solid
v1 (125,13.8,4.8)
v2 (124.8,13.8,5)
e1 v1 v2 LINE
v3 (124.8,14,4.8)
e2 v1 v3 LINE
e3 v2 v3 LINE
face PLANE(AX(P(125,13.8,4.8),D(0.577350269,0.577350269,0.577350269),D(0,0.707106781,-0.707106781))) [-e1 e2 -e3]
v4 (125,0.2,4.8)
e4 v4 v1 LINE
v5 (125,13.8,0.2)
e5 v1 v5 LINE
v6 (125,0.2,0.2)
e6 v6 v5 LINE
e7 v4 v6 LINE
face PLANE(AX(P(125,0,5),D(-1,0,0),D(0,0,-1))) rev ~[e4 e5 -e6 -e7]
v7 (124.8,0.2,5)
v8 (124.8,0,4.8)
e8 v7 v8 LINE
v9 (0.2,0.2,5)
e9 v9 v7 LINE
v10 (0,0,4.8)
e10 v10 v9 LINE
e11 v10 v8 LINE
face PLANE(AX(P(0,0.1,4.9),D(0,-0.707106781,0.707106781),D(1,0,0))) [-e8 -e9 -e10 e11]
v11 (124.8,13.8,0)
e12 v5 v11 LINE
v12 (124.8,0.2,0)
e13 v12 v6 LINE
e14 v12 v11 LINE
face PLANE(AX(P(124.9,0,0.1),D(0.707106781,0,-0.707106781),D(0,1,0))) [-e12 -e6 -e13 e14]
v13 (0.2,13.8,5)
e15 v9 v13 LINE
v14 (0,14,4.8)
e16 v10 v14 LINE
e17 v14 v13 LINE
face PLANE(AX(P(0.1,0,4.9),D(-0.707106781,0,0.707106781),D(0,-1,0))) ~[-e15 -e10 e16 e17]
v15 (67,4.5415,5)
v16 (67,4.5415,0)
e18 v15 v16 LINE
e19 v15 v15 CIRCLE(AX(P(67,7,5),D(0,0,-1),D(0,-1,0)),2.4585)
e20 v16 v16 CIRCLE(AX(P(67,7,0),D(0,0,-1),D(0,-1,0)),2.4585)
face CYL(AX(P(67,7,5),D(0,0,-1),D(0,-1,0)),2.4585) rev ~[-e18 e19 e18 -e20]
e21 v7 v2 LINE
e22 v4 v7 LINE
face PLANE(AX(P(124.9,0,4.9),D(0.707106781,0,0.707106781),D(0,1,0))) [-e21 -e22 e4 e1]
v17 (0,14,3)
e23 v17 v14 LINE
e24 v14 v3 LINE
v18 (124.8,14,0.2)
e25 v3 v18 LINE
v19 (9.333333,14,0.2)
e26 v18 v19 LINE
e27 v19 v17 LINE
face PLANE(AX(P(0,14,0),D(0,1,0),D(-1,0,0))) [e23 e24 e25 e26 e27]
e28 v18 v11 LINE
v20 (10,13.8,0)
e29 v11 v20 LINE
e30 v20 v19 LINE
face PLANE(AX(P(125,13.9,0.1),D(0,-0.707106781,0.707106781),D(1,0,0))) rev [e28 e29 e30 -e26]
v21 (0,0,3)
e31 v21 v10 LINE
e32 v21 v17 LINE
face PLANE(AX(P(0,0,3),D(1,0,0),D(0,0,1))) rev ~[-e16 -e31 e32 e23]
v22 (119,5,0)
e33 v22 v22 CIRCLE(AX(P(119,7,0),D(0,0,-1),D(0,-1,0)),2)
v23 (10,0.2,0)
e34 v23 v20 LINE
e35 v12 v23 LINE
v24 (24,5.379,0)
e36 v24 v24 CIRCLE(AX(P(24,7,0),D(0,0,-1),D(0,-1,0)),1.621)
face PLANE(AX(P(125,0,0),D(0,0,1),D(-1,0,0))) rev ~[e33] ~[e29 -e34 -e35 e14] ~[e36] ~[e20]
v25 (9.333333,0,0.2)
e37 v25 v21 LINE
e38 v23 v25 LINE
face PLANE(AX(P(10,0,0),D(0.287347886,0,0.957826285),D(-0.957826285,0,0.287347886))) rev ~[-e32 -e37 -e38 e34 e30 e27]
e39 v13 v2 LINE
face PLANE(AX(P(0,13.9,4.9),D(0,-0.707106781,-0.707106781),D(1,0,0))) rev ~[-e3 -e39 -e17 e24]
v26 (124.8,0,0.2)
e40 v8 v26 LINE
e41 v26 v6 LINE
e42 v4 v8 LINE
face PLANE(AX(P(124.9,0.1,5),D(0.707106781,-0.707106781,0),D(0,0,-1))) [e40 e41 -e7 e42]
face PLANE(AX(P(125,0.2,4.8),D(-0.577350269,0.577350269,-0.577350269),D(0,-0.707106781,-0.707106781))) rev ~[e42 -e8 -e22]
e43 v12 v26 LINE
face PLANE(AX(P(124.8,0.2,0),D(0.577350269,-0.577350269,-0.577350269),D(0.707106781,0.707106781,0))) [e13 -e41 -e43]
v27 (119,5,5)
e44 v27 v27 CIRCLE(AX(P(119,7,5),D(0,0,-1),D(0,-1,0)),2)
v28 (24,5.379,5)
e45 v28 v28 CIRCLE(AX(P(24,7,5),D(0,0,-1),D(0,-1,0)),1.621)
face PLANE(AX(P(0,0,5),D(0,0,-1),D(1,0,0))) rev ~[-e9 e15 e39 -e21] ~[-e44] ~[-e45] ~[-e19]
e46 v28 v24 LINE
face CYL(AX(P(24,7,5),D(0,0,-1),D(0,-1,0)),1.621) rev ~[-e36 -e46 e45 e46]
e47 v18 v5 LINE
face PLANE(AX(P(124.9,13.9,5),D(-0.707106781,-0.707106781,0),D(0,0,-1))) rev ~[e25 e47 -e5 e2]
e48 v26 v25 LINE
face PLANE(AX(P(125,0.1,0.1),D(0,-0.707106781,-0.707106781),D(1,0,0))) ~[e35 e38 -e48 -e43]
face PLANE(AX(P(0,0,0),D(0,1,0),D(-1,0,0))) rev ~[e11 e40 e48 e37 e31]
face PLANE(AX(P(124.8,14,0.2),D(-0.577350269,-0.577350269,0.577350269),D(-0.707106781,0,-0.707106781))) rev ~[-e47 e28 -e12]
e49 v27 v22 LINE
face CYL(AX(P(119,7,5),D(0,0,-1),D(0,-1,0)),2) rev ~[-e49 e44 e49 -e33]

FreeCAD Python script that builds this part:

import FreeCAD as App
import Part
import Sketcher
from FreeCAD import Vector
Q = App.Units.Quantity


def edges_at(feature, points):
    """Names of the edges that pass closest to the given points."""
    edges = feature.Shape.Edges
    near = lambda p: min(range(len(edges)), key=lambda i: edges[i].distToShape(Part.Vertex(*p))[0])
    return sorted({f"Edge{near(p) + 1}" for p in points})


def add_polygon(sketch, points):
    """Adds a closed chain of lines whose ends are joined by coincident constraints."""
    first, n = sketch.GeometryCount, len(points)
    for a, b in zip(points, points[1:] + points[:1]):
        sketch.addGeometry(Part.LineSegment(App.Vector(*a, 0), App.Vector(*b, 0)), False)
    for i in range(n):
        sketch.addConstraint(Sketcher.Constraint("Coincident", first + i, 2, first + (i + 1) % n, 1))

doc = App.newDocument("Part")
body = doc.addObject("PartDesign::Body", "Body")

# Sketch on XZ plane
sketch1 = body.newObject("Sketcher::SketchObject", "Sketch")
sketch1.AttachmentSupport = (doc.getObject("XZ_Plane"), [""])
sketch1.MapMode = "FlatFace"
add_polygon(sketch1, [(10, 0), (0, 3), (0, 5), (125, 5), (125, 0)])  # lines 0-4
sketch1.addConstraint([
    Sketcher.Constraint("Vertical", 1),
    Sketcher.Constraint("Horizontal", 2),
    Sketcher.Constraint("Vertical", 3),
    Sketcher.Constraint("Horizontal", 4),
    Sketcher.Constraint("PointOnObject", 0, 2, -2),
    Sketcher.Constraint("PointOnObject", 3, 2, -1),
    Sketcher.Constraint("DistanceX", 2, 1, 2, 2, Q("125 mm")),
    Sketcher.Constraint("DistanceY", 1, 1, 1, 2, Q("2 mm")),
    Sketcher.Constraint("DistanceY", 3, 2, 3, 1, Q("5 mm")),
    Sketcher.Constraint("DistanceX", -1, 1, 4, 2, Q("10 mm")),
])
pad1 = body.newObject("PartDesign::Pad", "Pad")
pad1.Profile = sketch1
pad1.Length = 14
pad1.Reversed = True

# Sketch on XY plane
sketch2 = body.newObject("Sketcher::SketchObject", "Sketch001")
sketch2.AttachmentSupport = (doc.getObject("XY_Plane"), [""])
sketch2.MapMode = "FlatFace"
sketch2.AttachmentOffset = App.Placement(Vector(0, 0, 5), App.Rotation())
sketch2.addGeometry(Part.Circle(Vector(24, 7, 0), Vector(0, 0, 1), 1.6), False)
sketch2.addConstraint([
    Sketcher.Constraint("Diameter", 0, Q("3.242 mm")),
    Sketcher.Constraint("DistanceX", -1, 1, 0, 3, Q("24 mm")),
    Sketcher.Constraint("DistanceY", -1, 1, 0, 3, Q("7 mm")),
])
doc.recompute()
hole = body.newObject("PartDesign::Hole", "Hole")
hole.Profile = sketch2
hole.ThreadType = "None"
hole.Diameter = 3.242
hole.DepthType = "Dimension"
hole.Depth = 5
hole.DrillPoint = "Flat"

# Sketch on XY plane
sketch3 = body.newObject("Sketcher::SketchObject", "Sketch002")
sketch3.AttachmentSupport = (doc.getObject("XY_Plane"), [""])
sketch3.MapMode = "FlatFace"
sketch3.AttachmentOffset = App.Placement(Vector(0, 0, 5), App.Rotation())
sketch3.addGeometry(Part.Circle(Vector(67, 7, 0), Vector(0, 0, 1), 2.5), False)
sketch3.addConstraint([
    Sketcher.Constraint("Diameter", 0, Q("4.917 mm")),
    Sketcher.Constraint("DistanceX", -1, 1, 0, 3, Q("67 mm")),
    Sketcher.Constraint("DistanceY", -1, 1, 0, 3, Q("7 mm")),
])
doc.recompute()
hole2 = body.newObject("PartDesign::Hole", "Hole001")
hole2.Profile = sketch3
hole2.ThreadType = "None"
hole2.Diameter = 4.917
hole2.DepthType = "ThroughAll"

# Sketch on XY plane
sketch4 = body.newObject("Sketcher::SketchObject", "Sketch003")
sketch4.AttachmentSupport = (doc.getObject("XY_Plane"), [""])
sketch4.MapMode = "FlatFace"
sketch4.AttachmentOffset = App.Placement(Vector(0, 0, 5), App.Rotation())
sketch4.addGeometry(Part.Circle(Vector(119, 7, 0), Vector(0, 0, 1), 2), False)
sketch4.addConstraint([
    Sketcher.Constraint("Diameter", 0, Q("4 mm")),
    Sketcher.Constraint("DistanceX", -1, 1, 0, 3, Q("119 mm")),
    Sketcher.Constraint("DistanceY", -1, 1, 0, 3, Q("7 mm")),
])
doc.recompute()
hole3 = body.newObject("PartDesign::Hole", "Hole002")
hole3.Profile = sketch4
hole3.ThreadType = "None"
hole3.Diameter = 4
hole3.DepthType = "ThroughAll"
doc.recompute()

chamfer = body.newObject("PartDesign::Chamfer", "Chamfer")
chamfer.Base = (hole3, edges_at(hole3, [
    (62.5, 0, 5),
    (62.5, 14, 5),
    (125, 7, 5),
    (125, 0, 2.5),
    (67.5, 0, 0),
    (125, 7, 0),
    (125, 14, 2.5),
    (67.5, 14, 0),
    (0, 7, 5),
]))
chamfer.Size = 0.2

doc.recompute()
